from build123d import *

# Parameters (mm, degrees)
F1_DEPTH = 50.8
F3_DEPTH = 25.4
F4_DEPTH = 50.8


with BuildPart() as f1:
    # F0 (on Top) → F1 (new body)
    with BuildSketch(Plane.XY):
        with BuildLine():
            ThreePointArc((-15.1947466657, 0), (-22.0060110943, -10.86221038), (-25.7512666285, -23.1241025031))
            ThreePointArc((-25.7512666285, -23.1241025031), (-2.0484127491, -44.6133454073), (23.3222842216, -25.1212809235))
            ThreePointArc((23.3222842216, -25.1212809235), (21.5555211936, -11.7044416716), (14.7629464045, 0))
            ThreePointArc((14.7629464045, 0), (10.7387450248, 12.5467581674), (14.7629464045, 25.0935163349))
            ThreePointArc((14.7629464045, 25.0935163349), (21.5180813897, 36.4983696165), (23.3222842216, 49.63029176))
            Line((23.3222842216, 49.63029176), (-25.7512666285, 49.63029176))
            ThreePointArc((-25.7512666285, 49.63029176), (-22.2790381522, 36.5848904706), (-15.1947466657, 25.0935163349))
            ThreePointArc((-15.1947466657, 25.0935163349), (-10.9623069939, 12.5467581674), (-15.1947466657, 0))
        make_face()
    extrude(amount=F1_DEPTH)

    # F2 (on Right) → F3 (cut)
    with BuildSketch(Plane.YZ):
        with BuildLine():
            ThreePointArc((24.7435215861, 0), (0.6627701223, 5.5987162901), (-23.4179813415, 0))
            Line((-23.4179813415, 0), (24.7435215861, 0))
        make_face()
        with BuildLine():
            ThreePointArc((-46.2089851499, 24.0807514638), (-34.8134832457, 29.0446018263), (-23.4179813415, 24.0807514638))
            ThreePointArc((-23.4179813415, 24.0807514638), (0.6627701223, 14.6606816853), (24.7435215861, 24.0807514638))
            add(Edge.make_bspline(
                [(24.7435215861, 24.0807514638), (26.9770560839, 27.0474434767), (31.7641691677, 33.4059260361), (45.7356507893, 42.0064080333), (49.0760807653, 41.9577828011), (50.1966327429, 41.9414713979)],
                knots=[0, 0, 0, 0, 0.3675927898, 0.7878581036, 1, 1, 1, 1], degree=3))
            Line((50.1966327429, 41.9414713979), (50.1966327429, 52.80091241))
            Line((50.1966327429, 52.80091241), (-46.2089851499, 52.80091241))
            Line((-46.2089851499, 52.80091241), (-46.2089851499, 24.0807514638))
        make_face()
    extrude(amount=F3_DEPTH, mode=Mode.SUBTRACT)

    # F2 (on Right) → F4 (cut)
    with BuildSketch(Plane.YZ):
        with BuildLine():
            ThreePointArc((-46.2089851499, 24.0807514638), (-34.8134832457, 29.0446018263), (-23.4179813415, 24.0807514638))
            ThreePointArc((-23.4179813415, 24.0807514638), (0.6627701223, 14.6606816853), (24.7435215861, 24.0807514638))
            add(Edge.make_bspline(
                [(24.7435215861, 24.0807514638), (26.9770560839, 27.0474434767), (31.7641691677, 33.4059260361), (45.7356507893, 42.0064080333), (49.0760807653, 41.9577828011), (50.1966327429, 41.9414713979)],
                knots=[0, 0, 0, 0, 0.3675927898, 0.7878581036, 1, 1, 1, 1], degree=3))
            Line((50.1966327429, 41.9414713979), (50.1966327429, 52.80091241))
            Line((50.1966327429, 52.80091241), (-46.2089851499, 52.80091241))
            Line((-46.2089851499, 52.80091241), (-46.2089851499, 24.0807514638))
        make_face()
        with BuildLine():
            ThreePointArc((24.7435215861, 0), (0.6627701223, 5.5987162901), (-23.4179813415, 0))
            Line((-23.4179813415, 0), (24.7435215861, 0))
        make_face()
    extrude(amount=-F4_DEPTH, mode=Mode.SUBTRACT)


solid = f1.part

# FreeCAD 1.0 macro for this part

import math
import FreeCAD as App
import Part
import Sketcher

V = App.Vector
Q = App.Units.Quantity

doc = App.newDocument("Part")
body = doc.addObject("PartDesign::Body", "Body")

sketch1 = body.newObject("Sketcher::SketchObject", "Sketch")
sketch1.AttachmentSupport = (doc.getObject("XY_Plane"), [""])
sketch1.MapMode = "FlatFace"
sketch1.addGeometry([
    Part.ArcOfCircle(Part.Circle(V(22, -31, 0), V(0, 0, 1), 49), math.radians(140), math.radians(171)),
    Part.ArcOfCircle(Part.Circle(V(-1, -20, 0), V(0, 0, 1), 25), math.radians(-172), math.radians(-13)),
    Part.ArcOfCircle(Part.Circle(V(-11, -23, 0), V(0, 0, 1), 34), math.radians(-4), math.radians(41)),
    Part.ArcOfCircle(Part.Circle(V(32, 13, 0), V(0, 0, 1), 22), math.radians(144), math.radians(216)),
    Part.ArcOfCircle(Part.Circle(V(-10, 48, 0), V(0, 0, 1), 34), math.radians(-42), math.radians(4)),
    Part.LineSegment(V(23, 50, 0), V(-26, 50, 0)),
    Part.ArcOfCircle(Part.Circle(V(20, 55, 0), V(0, 0, 1), 46), math.radians(-173), math.radians(-140)),
    Part.ArcOfCircle(Part.Circle(V(-32, 13, 0), V(0, 0, 1), 21), math.radians(-37), math.radians(37)),
], False)
sketch1.addConstraint([
    Sketcher.Constraint("Coincident", 0, 2, 1, 1),
    Sketcher.Constraint("Coincident", 1, 2, 2, 1),
    Sketcher.Constraint("Coincident", 2, 2, 3, 2),
    Sketcher.Constraint("Coincident", 3, 1, 4, 1),
    Sketcher.Constraint("Coincident", 4, 2, 5, 1),
    Sketcher.Constraint("Coincident", 5, 2, 6, 1),
    Sketcher.Constraint("Coincident", 6, 2, 7, 2),
    Sketcher.Constraint("Coincident", 7, 1, 0, 1),
    Sketcher.Constraint("Horizontal", 5),
    Sketcher.Constraint("PointOnObject", 2, 2, -1),
    Sketcher.Constraint("PointOnObject", 7, 1, -1),
    Sketcher.Constraint("Horizontal", 3, 3, 7, 3),
    Sketcher.Constraint("Horizontal", 3, 1, 6, 2),
    Sketcher.Constraint("Vertical", 2, 2, 3, 1),
    Sketcher.Constraint("Vertical", 1, 2, 4, 2),
    Sketcher.Constraint("Vertical", 0, 2, 5, 2),
    Sketcher.Constraint("Radius", 0, Q("48.772102 mm")),
    Sketcher.Constraint("Radius", 4, Q("33.508511 mm")),
    Sketcher.Constraint("DistanceX", -1, 1, 1, 2, Q("0.9182002 in")),
    Sketcher.Constraint("Radius", 1, Q("24.956895 mm")),
    Sketcher.Constraint("Radius", 2, Q("34.491394 mm")),
    Sketcher.Constraint("Radius", 3, Q("21.571403 mm")),
    Sketcher.Constraint("Radius", 6, Q("46.345564 mm")),
    Sketcher.Constraint("Radius", 7, Q("20.713194 mm")),
    Sketcher.Constraint("DistanceX", 5, 2, 5, 1, Q("49.073551 mm")),
    Sketcher.Constraint("DistanceY", 2, 3, -1, 1, Q("22.828402 mm")),
    Sketcher.Constraint("DistanceX", 7, 3, -1, 1, Q("31.675501 mm")),
    Sketcher.Constraint("DistanceY", 0, 2, 2, 3, Q("0.295701 mm")),
    Sketcher.Constraint("DistanceX", 0, 2, 1, 3, Q("24.717701 mm")),
    Sketcher.Constraint("DistanceX", 0, 3, 1, 2, Q("0.960801 mm")),
    Sketcher.Constraint("DistanceX", 4, 3, -1, 1, Q("10.120661 mm")),
])
pad1 = body.newObject("PartDesign::Pad", "Pad")
pad1.Profile = sketch1
pad1.Length = Q("2 in")

sketch2 = body.newObject("Sketcher::SketchObject", "Sketch001")
sketch2.AttachmentSupport = (doc.getObject("YZ_Plane"), [""])
sketch2.MapMode = "FlatFace"
sketch2.addGeometry([
    Part.ArcOfCircle(Part.Circle(V(0.66277, -48.987745, 0), V(0, 0, 1), 54.586461), math.radians(63.822798), math.radians(116.177202)),
    Part.LineSegment(V(-23.417981, 0, 0), V(24.743522, 0, 0)),
    Part.ArcOfCircle(Part.Circle(V(-34.813483, 13.482361, 0), V(0, 0, 1), 15.562241), math.radians(42.924373), math.radians(137.075627)),
    Part.ArcOfCircle(Part.Circle(V(0.66277, 50.149819, 0), V(0, 0, 1), 35.489138), math.radians(-132.729553), math.radians(-47.270447)),
    Part.BSplineCurve([V(24.743522, 24.080751, 0), V(26.977056, 27.047443, 0), V(31.764169, 33.405926, 0), V(45.735651, 42.006408, 0), V(49.076081, 41.957783, 0), V(50.196633, 41.941471, 0)], [4, 1, 1, 4], [0, 0.36759279, 0.787858104, 1], False, 3, [1, 1, 1, 1, 1, 1], False),
    Part.LineSegment(V(50.196633, 41.941471, 0), V(50.196633, 52.800912, 0)),
    Part.LineSegment(V(50.196633, 52.800912, 0), V(-46.208985, 52.800912, 0)),
    Part.LineSegment(V(-46.208985, 52.800912, 0), V(-46.208985, 24.080751, 0)),
], False)
sketch2.addConstraint([
    Sketcher.Constraint("Block", 4),
    Sketcher.Constraint("Coincident", 0, 1, 1, 2),
    Sketcher.Constraint("Coincident", 1, 1, 0, 2),
    Sketcher.Constraint("Coincident", 2, 1, 3, 1),
    Sketcher.Constraint("Coincident", 3, 2, 4, 1),
    Sketcher.Constraint("Coincident", 4, 2, 5, 1),
    Sketcher.Constraint("Coincident", 5, 2, 6, 1),
    Sketcher.Constraint("Coincident", 6, 2, 7, 1),
    Sketcher.Constraint("Coincident", 7, 2, 2, 2),
    Sketcher.Constraint("Horizontal", 1),
    Sketcher.Constraint("Vertical", 5),
    Sketcher.Constraint("Horizontal", 6),
    Sketcher.Constraint("Vertical", 7),
    Sketcher.Constraint("PointOnObject", 0, 1, -1),
    Sketcher.Constraint("Horizontal", 2, 1, 3, 2),
    Sketcher.Constraint("Horizontal", 3, 2, 7, 2),
    Sketcher.Constraint("Vertical", 0, 3, 3, 3),
    Sketcher.Constraint("Vertical", 1, 1, 2, 1),
    Sketcher.Constraint("Radius", 0, Q("54.586461 mm")),
    Sketcher.Constraint("Radius", 2, Q("15.562241 mm")),
    Sketcher.Constraint("Radius", 3, Q("35.489138 mm")),
    Sketcher.Constraint("DistanceY", 5, 1, 5, 2, Q("10.859441 mm")),
    Sketcher.Constraint("DistanceX", 2, 3, 1, 1, Q("11.395502 mm")),
    Sketcher.Constraint("DistanceX", 1, 1, 1, 2, Q("48.161503 mm")),
])
pocket1 = body.newObject("PartDesign::Pocket", "Pocket")
pocket1.Profile = sketch2
pocket1.Length = Q("1 in")
pocket1.Reversed = True

sketch3 = body.newObject("Sketcher::SketchObject", "Sketch002")
sketch3.AttachmentSupport = (doc.getObject("YZ_Plane"), [""])
sketch3.MapMode = "FlatFace"
sketch3.addGeometry([
    Part.ArcOfCircle(Part.Circle(V(-34.813483, 13.482361, 0), V(0, 0, 1), 15.562241), math.radians(42.924373), math.radians(137.075627)),
    Part.ArcOfCircle(Part.Circle(V(0.66277, 50.149819, 0), V(0, 0, 1), 35.489138), math.radians(-132.729553), math.radians(-47.270447)),
    Part.BSplineCurve([V(24.743522, 24.080751, 0), V(26.977056, 27.047443, 0), V(31.764169, 33.405926, 0), V(45.735651, 42.006408, 0), V(49.076081, 41.957783, 0), V(50.196633, 41.941471, 0)], [4, 1, 1, 4], [0, 0.36759279, 0.787858104, 1], False, 3, [1, 1, 1, 1, 1, 1], False),
    Part.LineSegment(V(50.196633, 41.941471, 0), V(50.196633, 52.800912, 0)),
    Part.LineSegment(V(50.196633, 52.800912, 0), V(-46.208985, 52.800912, 0)),
    Part.LineSegment(V(-46.208985, 52.800912, 0), V(-46.208985, 24.080751, 0)),
    Part.ArcOfCircle(Part.Circle(V(0.66277, -48.987745, 0), V(0, 0, 1), 54.586461), math.radians(63.822798), math.radians(116.177202)),
    Part.LineSegment(V(-23.417981, 0, 0), V(24.743522, 0, 0)),
], False)
sketch3.addConstraint([
    Sketcher.Constraint("Block", 2),
    Sketcher.Constraint("Coincident", 0, 1, 1, 1),
    Sketcher.Constraint("Coincident", 1, 2, 2, 1),
    Sketcher.Constraint("Coincident", 2, 2, 3, 1),
    Sketcher.Constraint("Coincident", 3, 2, 4, 1),
    Sketcher.Constraint("Coincident", 4, 2, 5, 1),
    Sketcher.Constraint("Coincident", 5, 2, 0, 2),
    Sketcher.Constraint("Coincident", 6, 1, 7, 2),
    Sketcher.Constraint("Coincident", 7, 1, 6, 2),
    Sketcher.Constraint("Vertical", 3),
    Sketcher.Constraint("Horizontal", 4),
    Sketcher.Constraint("Vertical", 5),
    Sketcher.Constraint("Horizontal", 7),
    Sketcher.Constraint("PointOnObject", 6, 1, -1),
    Sketcher.Constraint("Horizontal", 0, 1, 1, 2),
    Sketcher.Constraint("Horizontal", 1, 2, 5, 2),
    Sketcher.Constraint("Vertical", 1, 3, 6, 3),
    Sketcher.Constraint("Vertical", 1, 2, 6, 1),
    Sketcher.Constraint("Radius", 0, Q("15.562241 mm")),
    Sketcher.Constraint("Radius", 6, Q("54.586461 mm")),
    Sketcher.Constraint("Radius", 1, Q("35.489138 mm")),
    Sketcher.Constraint("DistanceY", 3, 1, 3, 2, Q("10.859441 mm")),
    Sketcher.Constraint("DistanceX", 0, 3, 0, 1, Q("11.395502 mm")),
    Sketcher.Constraint("DistanceX", 4, 2, 4, 1, Q("96.405618 mm")),
])
pocket2 = body.newObject("PartDesign::Pocket", "Pocket001")
pocket2.Profile = sketch3
pocket2.Length = Q("2 in")

doc.recompute()
